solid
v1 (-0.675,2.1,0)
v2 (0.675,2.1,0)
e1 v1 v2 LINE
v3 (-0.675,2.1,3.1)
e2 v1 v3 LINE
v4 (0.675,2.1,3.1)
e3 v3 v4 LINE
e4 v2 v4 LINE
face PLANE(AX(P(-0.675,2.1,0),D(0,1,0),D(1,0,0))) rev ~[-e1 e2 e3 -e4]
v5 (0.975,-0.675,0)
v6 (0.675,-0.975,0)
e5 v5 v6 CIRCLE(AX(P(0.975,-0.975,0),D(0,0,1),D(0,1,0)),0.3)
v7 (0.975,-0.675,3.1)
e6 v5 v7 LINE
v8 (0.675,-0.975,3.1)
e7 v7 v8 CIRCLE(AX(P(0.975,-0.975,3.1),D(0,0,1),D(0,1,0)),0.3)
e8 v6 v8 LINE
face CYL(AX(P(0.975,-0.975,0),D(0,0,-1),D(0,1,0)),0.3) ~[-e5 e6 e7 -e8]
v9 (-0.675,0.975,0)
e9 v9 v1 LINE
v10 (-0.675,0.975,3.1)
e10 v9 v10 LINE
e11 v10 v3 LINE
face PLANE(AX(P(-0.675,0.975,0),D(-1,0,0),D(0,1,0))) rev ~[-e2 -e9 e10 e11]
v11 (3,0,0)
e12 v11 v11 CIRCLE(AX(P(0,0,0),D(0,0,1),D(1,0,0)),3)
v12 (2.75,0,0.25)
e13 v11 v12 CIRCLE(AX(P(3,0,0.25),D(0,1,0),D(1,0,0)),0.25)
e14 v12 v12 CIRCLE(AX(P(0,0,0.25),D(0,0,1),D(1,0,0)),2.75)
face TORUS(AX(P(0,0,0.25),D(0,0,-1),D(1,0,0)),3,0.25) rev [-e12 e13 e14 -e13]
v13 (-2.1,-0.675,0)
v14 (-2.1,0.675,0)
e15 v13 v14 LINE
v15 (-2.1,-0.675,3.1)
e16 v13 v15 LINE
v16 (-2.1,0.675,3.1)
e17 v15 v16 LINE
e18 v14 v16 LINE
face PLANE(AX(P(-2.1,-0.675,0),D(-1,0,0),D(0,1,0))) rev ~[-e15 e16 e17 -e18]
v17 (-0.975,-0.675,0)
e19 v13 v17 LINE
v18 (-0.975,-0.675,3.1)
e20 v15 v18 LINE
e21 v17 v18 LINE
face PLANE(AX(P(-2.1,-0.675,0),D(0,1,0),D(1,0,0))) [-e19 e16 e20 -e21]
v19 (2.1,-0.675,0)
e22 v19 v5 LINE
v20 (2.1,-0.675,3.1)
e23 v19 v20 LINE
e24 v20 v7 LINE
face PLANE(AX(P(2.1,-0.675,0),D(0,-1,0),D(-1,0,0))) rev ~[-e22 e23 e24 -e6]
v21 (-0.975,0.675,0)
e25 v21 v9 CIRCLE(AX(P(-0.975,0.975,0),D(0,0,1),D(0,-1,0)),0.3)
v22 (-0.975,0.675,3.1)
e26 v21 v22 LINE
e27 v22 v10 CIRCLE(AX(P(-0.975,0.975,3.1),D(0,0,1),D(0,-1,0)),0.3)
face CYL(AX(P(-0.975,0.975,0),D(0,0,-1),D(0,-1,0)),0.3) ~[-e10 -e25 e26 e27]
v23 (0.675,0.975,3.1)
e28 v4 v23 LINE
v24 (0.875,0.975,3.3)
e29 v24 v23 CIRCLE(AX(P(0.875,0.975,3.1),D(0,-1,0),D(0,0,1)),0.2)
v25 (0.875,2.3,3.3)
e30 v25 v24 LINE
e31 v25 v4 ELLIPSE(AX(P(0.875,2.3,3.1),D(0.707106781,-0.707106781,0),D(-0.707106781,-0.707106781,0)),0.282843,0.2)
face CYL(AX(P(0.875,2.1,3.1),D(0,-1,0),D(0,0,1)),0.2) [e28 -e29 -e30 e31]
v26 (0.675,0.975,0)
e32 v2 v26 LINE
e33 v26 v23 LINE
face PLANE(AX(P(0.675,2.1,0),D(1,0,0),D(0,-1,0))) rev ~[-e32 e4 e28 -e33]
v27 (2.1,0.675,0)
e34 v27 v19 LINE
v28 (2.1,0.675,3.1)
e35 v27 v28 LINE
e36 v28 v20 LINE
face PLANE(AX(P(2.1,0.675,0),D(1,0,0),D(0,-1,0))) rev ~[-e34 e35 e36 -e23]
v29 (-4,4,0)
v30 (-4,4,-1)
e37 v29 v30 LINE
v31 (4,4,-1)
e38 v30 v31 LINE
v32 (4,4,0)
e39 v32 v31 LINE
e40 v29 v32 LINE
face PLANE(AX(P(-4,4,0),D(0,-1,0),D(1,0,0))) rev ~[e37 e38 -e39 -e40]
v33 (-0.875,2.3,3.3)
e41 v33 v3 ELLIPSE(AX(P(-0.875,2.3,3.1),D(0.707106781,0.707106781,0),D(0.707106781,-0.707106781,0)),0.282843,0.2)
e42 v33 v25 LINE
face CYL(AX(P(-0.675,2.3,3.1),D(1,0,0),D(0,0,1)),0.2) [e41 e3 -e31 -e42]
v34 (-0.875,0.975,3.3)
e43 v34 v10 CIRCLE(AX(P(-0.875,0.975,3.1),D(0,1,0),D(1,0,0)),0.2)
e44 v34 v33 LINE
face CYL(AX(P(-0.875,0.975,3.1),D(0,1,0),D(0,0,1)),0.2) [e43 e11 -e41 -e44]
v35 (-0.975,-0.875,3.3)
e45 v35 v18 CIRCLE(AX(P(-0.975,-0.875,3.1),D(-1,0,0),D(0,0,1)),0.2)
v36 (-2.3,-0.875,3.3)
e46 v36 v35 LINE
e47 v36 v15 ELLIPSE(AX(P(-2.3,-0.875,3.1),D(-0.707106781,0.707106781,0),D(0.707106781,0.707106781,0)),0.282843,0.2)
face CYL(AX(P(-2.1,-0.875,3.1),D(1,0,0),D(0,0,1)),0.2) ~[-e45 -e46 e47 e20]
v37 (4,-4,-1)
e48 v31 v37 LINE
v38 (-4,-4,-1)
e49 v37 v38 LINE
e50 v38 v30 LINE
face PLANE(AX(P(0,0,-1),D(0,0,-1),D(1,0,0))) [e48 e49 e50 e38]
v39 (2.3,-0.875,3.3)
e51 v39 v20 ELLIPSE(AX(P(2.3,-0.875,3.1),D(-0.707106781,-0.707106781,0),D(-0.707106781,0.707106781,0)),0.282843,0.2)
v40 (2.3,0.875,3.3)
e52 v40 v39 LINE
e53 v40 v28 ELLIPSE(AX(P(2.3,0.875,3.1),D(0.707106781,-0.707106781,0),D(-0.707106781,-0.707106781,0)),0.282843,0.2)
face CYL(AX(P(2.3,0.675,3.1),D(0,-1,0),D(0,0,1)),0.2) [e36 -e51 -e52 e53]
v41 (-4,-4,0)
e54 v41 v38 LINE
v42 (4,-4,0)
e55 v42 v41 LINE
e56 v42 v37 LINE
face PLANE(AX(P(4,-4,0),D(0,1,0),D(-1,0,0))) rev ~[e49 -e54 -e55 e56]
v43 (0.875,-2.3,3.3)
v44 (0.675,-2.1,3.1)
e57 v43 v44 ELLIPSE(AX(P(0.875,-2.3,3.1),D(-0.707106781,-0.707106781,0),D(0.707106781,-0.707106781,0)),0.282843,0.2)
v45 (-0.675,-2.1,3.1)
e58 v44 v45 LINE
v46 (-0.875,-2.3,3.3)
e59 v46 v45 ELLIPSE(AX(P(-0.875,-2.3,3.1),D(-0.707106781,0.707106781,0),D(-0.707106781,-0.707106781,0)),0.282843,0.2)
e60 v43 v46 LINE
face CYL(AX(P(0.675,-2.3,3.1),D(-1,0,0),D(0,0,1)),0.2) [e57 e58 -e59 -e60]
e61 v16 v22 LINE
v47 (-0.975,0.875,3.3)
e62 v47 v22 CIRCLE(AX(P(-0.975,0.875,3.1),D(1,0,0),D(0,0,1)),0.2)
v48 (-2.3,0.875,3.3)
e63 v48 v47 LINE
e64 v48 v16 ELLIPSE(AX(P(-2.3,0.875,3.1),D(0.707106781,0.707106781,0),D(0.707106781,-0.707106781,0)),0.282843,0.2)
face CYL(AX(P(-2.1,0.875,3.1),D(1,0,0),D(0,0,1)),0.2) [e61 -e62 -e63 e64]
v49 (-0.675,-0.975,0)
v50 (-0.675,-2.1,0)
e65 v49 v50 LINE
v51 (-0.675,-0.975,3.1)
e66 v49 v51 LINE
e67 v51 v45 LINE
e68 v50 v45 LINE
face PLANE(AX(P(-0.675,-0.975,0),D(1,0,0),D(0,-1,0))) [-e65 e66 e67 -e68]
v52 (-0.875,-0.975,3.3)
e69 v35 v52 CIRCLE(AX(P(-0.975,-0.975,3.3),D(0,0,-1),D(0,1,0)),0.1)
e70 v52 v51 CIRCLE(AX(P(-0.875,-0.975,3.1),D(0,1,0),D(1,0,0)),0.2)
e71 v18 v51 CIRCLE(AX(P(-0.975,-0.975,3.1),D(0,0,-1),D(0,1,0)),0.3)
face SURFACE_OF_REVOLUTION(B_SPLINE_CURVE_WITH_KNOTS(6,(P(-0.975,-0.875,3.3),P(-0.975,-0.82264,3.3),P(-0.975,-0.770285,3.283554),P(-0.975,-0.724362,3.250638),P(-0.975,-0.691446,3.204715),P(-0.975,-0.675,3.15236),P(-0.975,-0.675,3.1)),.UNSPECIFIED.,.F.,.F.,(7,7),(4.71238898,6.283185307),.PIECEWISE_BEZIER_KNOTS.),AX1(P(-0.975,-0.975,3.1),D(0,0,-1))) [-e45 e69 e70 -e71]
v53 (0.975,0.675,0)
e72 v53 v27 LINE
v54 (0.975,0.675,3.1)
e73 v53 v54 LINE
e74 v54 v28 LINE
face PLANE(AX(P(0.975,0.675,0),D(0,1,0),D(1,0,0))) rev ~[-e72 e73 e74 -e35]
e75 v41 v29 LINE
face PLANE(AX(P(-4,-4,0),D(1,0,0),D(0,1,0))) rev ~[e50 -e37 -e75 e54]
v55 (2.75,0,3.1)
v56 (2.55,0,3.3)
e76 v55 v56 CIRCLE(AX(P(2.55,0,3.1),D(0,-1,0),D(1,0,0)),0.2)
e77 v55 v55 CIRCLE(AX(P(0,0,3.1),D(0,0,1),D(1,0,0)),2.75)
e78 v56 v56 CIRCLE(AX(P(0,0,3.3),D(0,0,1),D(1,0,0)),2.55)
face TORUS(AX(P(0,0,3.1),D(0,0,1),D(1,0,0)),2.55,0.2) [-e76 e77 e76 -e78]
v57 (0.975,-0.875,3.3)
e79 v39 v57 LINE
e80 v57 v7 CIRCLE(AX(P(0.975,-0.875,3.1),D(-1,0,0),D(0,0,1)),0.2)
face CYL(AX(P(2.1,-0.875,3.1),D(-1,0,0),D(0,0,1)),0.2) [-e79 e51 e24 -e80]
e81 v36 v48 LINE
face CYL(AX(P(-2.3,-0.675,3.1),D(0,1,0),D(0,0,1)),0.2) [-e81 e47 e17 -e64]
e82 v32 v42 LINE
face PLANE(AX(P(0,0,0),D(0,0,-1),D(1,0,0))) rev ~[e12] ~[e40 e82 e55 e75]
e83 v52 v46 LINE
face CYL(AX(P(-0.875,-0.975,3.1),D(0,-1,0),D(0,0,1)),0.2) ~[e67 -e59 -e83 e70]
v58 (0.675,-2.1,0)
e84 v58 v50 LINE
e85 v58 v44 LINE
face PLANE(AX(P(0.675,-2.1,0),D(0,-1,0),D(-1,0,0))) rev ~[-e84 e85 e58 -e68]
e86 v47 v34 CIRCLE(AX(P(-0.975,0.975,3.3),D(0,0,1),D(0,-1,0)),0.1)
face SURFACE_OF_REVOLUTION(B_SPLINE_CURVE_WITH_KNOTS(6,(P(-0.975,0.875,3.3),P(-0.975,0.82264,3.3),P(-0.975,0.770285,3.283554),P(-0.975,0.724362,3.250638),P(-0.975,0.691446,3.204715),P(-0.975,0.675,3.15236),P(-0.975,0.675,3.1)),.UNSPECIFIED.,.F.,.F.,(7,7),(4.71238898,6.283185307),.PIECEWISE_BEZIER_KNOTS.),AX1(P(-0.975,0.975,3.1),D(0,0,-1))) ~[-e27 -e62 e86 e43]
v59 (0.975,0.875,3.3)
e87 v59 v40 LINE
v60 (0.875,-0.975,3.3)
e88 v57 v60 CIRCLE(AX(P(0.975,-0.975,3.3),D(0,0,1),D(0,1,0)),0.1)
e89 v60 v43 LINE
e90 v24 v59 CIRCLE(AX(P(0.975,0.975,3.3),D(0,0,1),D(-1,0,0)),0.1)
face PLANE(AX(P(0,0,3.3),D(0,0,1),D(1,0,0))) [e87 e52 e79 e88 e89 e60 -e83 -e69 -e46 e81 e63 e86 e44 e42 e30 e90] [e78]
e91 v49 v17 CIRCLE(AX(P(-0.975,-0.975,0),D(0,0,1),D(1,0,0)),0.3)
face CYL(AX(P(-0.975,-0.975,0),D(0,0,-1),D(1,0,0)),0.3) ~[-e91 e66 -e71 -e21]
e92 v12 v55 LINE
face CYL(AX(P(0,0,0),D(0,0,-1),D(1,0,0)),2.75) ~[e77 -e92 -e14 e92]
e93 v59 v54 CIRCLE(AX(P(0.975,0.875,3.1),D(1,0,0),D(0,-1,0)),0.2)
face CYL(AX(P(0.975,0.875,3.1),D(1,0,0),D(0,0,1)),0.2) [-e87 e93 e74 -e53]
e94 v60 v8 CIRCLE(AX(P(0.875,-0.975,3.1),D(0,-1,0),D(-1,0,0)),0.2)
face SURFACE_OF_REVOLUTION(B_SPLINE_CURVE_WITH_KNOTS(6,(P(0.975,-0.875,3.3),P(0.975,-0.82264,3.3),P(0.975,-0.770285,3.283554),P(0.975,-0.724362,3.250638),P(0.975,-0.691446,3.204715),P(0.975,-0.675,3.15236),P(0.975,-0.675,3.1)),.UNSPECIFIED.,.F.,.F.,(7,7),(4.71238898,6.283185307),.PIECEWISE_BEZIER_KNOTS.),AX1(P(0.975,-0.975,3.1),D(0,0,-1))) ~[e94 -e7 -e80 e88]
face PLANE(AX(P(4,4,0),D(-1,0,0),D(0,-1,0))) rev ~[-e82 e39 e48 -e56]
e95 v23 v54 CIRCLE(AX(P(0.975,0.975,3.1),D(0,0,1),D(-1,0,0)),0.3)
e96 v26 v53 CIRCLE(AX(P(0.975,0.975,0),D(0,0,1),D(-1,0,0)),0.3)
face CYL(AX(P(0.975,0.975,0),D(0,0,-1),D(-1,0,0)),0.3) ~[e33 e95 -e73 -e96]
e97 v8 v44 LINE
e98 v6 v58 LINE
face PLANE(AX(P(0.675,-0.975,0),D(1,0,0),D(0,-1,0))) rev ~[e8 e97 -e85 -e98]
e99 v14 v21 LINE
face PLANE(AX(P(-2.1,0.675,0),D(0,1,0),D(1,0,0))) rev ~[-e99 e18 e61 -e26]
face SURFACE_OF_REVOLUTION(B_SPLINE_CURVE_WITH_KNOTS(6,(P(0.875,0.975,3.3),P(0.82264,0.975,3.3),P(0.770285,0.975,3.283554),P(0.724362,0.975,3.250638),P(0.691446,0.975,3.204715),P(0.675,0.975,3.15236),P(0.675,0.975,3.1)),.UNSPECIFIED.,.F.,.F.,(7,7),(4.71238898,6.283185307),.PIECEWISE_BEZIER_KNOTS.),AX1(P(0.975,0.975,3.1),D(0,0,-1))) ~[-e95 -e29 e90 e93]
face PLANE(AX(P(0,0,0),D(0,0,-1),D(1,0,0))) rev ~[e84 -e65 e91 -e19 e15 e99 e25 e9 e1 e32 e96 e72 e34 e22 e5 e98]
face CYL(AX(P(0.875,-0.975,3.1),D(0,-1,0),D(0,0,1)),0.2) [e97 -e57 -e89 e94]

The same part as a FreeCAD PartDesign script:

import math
import FreeCAD as App
import Part
import Sketcher

V = App.Vector
Q = App.Units.Quantity


def edges_at(feature, points):
    """Names of the edges that pass closest to the given points."""
    edges = feature.Shape.Edges
    near = lambda p: min(range(len(edges)), key=lambda i: edges[i].distToShape(Part.Vertex(*p))[0])
    return sorted({f"Edge{near(p) + 1}" for p in points})


def add_polygon(sketch, points):
    """Adds a closed chain of lines whose ends are joined by coincident constraints."""
    first, n = sketch.GeometryCount, len(points)
    for a, b in zip(points, points[1:] + points[:1]):
        sketch.addGeometry(Part.LineSegment(App.Vector(*a, 0), App.Vector(*b, 0)), False)
    for i in range(n):
        sketch.addConstraint(Sketcher.Constraint("Coincident", first + i, 2, first + (i + 1) % n, 1))

doc = App.newDocument("Part")
body = doc.addObject("PartDesign::Body", "Body")

# Sketch on XY plane
sketch1 = doc.addObject("Sketcher::SketchObject", "Sketch")
body.addObject(sketch1)
sketch1.AttachmentSupport = (doc.XY_Plane, [""])
sketch1.MapMode = "FlatFace"
sketch1.addGeometry(Part.Circle(V(0, 0, 0), V(0, 0, 1), 2.75), False)
sketch1.addGeometry(Part.LineSegment(V(0.675, -0.975, 0), V(0.675, -2.1, 0)), False)
sketch1.addGeometry(Part.LineSegment(V(0.675, -2.1, 0), V(-0.675, -2.1, 0)), False)
sketch1.addGeometry(Part.LineSegment(V(-0.675, -2.1, 0), V(-0.675, -0.975, 0)), False)
sketch1.addGeometry(Part.ArcOfCircle(Part.Circle(V(-0.975, -0.975, 0), V(0, 0, 1), 0.3), math.radians(0), math.radians(90)), False)
sketch1.addGeometry(Part.LineSegment(V(-0.975, -0.675, 0), V(-2.1, -0.675, 0)), False)
sketch1.addGeometry(Part.LineSegment(V(-2.1, -0.675, 0), V(-2.1, 0.675, 0)), False)
sketch1.addGeometry(Part.LineSegment(V(-2.1, 0.675, 0), V(-0.975, 0.675, 0)), False)
sketch1.addGeometry(Part.ArcOfCircle(Part.Circle(V(-0.975, 0.975, 0), V(0, 0, 1), 0.3), math.radians(-90), math.radians(0)), False)
sketch1.addGeometry(Part.LineSegment(V(-0.675, 0.975, 0), V(-0.675, 2.1, 0)), False)
sketch1.addGeometry(Part.LineSegment(V(-0.675, 2.1, 0), V(0.675, 2.1, 0)), False)
sketch1.addGeometry(Part.LineSegment(V(0.675, 2.1, 0), V(0.675, 0.975, 0)), False)
sketch1.addGeometry(Part.ArcOfCircle(Part.Circle(V(0.975, 0.975, 0), V(0, 0, 1), 0.3), math.radians(180), math.radians(270)), False)
sketch1.addGeometry(Part.LineSegment(V(0.975, 0.675, 0), V(2.1, 0.675, 0)), False)
sketch1.addGeometry(Part.LineSegment(V(2.1, 0.675, 0), V(2.1, -0.675, 0)), False)
sketch1.addGeometry(Part.LineSegment(V(2.1, -0.675, 0), V(0.975, -0.675, 0)), False)
sketch1.addGeometry(Part.ArcOfCircle(Part.Circle(V(0.975, -0.975, 0), V(0, 0, 1), 0.3), math.radians(90), math.radians(180)), False)
sketch1.addConstraint(Sketcher.Constraint("Coincident", 1, 2, 2, 1))
sketch1.addConstraint(Sketcher.Constraint("Coincident", 2, 2, 3, 1))
sketch1.addConstraint(Sketcher.Constraint("Tangent", 3, 2, 4, 1))
sketch1.addConstraint(Sketcher.Constraint("Tangent", 4, 2, 5, 1))
sketch1.addConstraint(Sketcher.Constraint("Coincident", 5, 2, 6, 1))
sketch1.addConstraint(Sketcher.Constraint("Coincident", 6, 2, 7, 1))
sketch1.addConstraint(Sketcher.Constraint("Tangent", 7, 2, 8, 1))
sketch1.addConstraint(Sketcher.Constraint("Tangent", 8, 2, 9, 1))
sketch1.addConstraint(Sketcher.Constraint("Coincident", 9, 2, 10, 1))
sketch1.addConstraint(Sketcher.Constraint("Coincident", 10, 2, 11, 1))
sketch1.addConstraint(Sketcher.Constraint("Tangent", 11, 2, 12, 1))
sketch1.addConstraint(Sketcher.Constraint("Tangent", 12, 2, 13, 1))
sketch1.addConstraint(Sketcher.Constraint("Coincident", 13, 2, 14, 1))
sketch1.addConstraint(Sketcher.Constraint("Coincident", 14, 2, 15, 1))
sketch1.addConstraint(Sketcher.Constraint("Tangent", 15, 2, 16, 1))
sketch1.addConstraint(Sketcher.Constraint("Tangent", 16, 2, 1, 1))
sketch1.addConstraint(Sketcher.Constraint("Vertical", 1))
sketch1.addConstraint(Sketcher.Constraint("Horizontal", 2))
sketch1.addConstraint(Sketcher.Constraint("Vertical", 3))
sketch1.addConstraint(Sketcher.Constraint("Horizontal", 5))
sketch1.addConstraint(Sketcher.Constraint("Vertical", 6))
sketch1.addConstraint(Sketcher.Constraint("Horizontal", 7))
sketch1.addConstraint(Sketcher.Constraint("Vertical", 9))
sketch1.addConstraint(Sketcher.Constraint("Horizontal", 10))
sketch1.addConstraint(Sketcher.Constraint("Vertical", 11))
sketch1.addConstraint(Sketcher.Constraint("Horizontal", 13))
sketch1.addConstraint(Sketcher.Constraint("Vertical", 14))
sketch1.addConstraint(Sketcher.Constraint("Horizontal", 15))
sketch1.addConstraint(Sketcher.Constraint("Coincident", 0, 3, -1, 1))
sketch1.addConstraint(Sketcher.Constraint("Equal", 4, 8))
sketch1.addConstraint(Sketcher.Constraint("Equal", 8, 12))
sketch1.addConstraint(Sketcher.Constraint("Equal", 12, 16))
sketch1.addConstraint(Sketcher.Constraint("Symmetric", 4, 3, 12, 3, -1, 1))
sketch1.addConstraint(Sketcher.Constraint("Symmetric", 8, 3, 16, 3, -1, 1))
sketch1.addConstraint(Sketcher.Constraint("Symmetric", 8, 3, 12, 3, -2))
sketch1.addConstraint(Sketcher.Constraint("Equal", 7, 13))
sketch1.addConstraint(Sketcher.Constraint("Equal", 15, 1))
sketch1.addConstraint(Sketcher.Constraint("Equal", 10, 6))
sketch1.addConstraint(Sketcher.Constraint("Equal", 3, 9))
sketch1.addConstraint(Sketcher.Constraint("Diameter", 0, Q("5.5 mm")))
sketch1.addConstraint(Sketcher.Constraint("Radius", 4, Q("0.3 mm")))
sketch1.addConstraint(Sketcher.Constraint("DistanceX", 2, 2, 2, 1, Q("1.35 mm")))
sketch1.addConstraint(Sketcher.Constraint("DistanceY", 1, 2, -1, 1, Q("2.1 mm")))
pad1 = doc.addObject("PartDesign::Pad", "Pad")
body.addObject(pad1)
pad1.Profile = sketch1
pad1.Length = 3.3

# Sketch on XY plane
sketch2 = doc.addObject("Sketcher::SketchObject", "Sketch001")
body.addObject(sketch2)
sketch2.AttachmentSupport = (doc.XY_Plane, [""])
sketch2.MapMode = "FlatFace"
add_polygon(sketch2, [(4, 4), (4, -4), (-4, -4), (-4, 4)])  # lines 0-3
sketch2.addConstraint(Sketcher.Constraint("Vertical", 0))
sketch2.addConstraint(Sketcher.Constraint("Horizontal", 1))
sketch2.addConstraint(Sketcher.Constraint("Vertical", 2))
sketch2.addConstraint(Sketcher.Constraint("Horizontal", 3))
sketch2.addConstraint(Sketcher.Constraint("Symmetric", 0, 2, 2, 2, -1, 1))
sketch2.addConstraint(Sketcher.Constraint("Equal", 3, 0))
sketch2.addConstraint(Sketcher.Constraint("DistanceX", 1, 2, 1, 1, Q("8 mm")))
pad2 = doc.addObject("PartDesign::Pad", "Pad001")
body.addObject(pad2)
pad2.Profile = sketch2
pad2.Length = 1
pad2.Reversed = True
doc.recompute()

fillet = doc.addObject("PartDesign::Fillet", "Fillet")
body.addObject(fillet)
fillet.Base = (pad2, edges_at(pad2, [(-2.564, -0.994, 0)]))
fillet.Radius = 0.25
doc.recompute()

fillet2 = doc.addObject("PartDesign::Fillet", "Fillet001")
body.addObject(fillet2)
fillet2.Base = (fillet, edges_at(fillet, [(-2.564, -0.994, 3.3)]))
fillet2.Radius = 0.2
doc.recompute()

fillet3 = doc.addObject("PartDesign::Fillet", "Fillet002")
body.addObject(fillet3)
fillet3.Base = (fillet2, edges_at(fillet2, [
    (1.538, -0.675, 3.3),
    (0.763, -0.763, 3.3),
    (0.675, -1.538, 3.3),
    (2.1, 0, 3.3),
    (0.675, 1.538, 3.3),
    (0.763, 0.763, 3.3),
    (1.538, 0.675, 3.3),
    (0, 2.1, 3.3),
    (-1.538, 0.675, 3.3),
    (-0.763, 0.763, 3.3),
    (-0.675, 1.538, 3.3),
    (-2.1, 0, 3.3),
    (-0.675, -1.538, 3.3),
    (-0.763, -0.763, 3.3),
    (-1.538, -0.675, 3.3),
    (0, -2.1, 3.3),
]))
fillet3.Radius = 0.2

doc.recompute()
